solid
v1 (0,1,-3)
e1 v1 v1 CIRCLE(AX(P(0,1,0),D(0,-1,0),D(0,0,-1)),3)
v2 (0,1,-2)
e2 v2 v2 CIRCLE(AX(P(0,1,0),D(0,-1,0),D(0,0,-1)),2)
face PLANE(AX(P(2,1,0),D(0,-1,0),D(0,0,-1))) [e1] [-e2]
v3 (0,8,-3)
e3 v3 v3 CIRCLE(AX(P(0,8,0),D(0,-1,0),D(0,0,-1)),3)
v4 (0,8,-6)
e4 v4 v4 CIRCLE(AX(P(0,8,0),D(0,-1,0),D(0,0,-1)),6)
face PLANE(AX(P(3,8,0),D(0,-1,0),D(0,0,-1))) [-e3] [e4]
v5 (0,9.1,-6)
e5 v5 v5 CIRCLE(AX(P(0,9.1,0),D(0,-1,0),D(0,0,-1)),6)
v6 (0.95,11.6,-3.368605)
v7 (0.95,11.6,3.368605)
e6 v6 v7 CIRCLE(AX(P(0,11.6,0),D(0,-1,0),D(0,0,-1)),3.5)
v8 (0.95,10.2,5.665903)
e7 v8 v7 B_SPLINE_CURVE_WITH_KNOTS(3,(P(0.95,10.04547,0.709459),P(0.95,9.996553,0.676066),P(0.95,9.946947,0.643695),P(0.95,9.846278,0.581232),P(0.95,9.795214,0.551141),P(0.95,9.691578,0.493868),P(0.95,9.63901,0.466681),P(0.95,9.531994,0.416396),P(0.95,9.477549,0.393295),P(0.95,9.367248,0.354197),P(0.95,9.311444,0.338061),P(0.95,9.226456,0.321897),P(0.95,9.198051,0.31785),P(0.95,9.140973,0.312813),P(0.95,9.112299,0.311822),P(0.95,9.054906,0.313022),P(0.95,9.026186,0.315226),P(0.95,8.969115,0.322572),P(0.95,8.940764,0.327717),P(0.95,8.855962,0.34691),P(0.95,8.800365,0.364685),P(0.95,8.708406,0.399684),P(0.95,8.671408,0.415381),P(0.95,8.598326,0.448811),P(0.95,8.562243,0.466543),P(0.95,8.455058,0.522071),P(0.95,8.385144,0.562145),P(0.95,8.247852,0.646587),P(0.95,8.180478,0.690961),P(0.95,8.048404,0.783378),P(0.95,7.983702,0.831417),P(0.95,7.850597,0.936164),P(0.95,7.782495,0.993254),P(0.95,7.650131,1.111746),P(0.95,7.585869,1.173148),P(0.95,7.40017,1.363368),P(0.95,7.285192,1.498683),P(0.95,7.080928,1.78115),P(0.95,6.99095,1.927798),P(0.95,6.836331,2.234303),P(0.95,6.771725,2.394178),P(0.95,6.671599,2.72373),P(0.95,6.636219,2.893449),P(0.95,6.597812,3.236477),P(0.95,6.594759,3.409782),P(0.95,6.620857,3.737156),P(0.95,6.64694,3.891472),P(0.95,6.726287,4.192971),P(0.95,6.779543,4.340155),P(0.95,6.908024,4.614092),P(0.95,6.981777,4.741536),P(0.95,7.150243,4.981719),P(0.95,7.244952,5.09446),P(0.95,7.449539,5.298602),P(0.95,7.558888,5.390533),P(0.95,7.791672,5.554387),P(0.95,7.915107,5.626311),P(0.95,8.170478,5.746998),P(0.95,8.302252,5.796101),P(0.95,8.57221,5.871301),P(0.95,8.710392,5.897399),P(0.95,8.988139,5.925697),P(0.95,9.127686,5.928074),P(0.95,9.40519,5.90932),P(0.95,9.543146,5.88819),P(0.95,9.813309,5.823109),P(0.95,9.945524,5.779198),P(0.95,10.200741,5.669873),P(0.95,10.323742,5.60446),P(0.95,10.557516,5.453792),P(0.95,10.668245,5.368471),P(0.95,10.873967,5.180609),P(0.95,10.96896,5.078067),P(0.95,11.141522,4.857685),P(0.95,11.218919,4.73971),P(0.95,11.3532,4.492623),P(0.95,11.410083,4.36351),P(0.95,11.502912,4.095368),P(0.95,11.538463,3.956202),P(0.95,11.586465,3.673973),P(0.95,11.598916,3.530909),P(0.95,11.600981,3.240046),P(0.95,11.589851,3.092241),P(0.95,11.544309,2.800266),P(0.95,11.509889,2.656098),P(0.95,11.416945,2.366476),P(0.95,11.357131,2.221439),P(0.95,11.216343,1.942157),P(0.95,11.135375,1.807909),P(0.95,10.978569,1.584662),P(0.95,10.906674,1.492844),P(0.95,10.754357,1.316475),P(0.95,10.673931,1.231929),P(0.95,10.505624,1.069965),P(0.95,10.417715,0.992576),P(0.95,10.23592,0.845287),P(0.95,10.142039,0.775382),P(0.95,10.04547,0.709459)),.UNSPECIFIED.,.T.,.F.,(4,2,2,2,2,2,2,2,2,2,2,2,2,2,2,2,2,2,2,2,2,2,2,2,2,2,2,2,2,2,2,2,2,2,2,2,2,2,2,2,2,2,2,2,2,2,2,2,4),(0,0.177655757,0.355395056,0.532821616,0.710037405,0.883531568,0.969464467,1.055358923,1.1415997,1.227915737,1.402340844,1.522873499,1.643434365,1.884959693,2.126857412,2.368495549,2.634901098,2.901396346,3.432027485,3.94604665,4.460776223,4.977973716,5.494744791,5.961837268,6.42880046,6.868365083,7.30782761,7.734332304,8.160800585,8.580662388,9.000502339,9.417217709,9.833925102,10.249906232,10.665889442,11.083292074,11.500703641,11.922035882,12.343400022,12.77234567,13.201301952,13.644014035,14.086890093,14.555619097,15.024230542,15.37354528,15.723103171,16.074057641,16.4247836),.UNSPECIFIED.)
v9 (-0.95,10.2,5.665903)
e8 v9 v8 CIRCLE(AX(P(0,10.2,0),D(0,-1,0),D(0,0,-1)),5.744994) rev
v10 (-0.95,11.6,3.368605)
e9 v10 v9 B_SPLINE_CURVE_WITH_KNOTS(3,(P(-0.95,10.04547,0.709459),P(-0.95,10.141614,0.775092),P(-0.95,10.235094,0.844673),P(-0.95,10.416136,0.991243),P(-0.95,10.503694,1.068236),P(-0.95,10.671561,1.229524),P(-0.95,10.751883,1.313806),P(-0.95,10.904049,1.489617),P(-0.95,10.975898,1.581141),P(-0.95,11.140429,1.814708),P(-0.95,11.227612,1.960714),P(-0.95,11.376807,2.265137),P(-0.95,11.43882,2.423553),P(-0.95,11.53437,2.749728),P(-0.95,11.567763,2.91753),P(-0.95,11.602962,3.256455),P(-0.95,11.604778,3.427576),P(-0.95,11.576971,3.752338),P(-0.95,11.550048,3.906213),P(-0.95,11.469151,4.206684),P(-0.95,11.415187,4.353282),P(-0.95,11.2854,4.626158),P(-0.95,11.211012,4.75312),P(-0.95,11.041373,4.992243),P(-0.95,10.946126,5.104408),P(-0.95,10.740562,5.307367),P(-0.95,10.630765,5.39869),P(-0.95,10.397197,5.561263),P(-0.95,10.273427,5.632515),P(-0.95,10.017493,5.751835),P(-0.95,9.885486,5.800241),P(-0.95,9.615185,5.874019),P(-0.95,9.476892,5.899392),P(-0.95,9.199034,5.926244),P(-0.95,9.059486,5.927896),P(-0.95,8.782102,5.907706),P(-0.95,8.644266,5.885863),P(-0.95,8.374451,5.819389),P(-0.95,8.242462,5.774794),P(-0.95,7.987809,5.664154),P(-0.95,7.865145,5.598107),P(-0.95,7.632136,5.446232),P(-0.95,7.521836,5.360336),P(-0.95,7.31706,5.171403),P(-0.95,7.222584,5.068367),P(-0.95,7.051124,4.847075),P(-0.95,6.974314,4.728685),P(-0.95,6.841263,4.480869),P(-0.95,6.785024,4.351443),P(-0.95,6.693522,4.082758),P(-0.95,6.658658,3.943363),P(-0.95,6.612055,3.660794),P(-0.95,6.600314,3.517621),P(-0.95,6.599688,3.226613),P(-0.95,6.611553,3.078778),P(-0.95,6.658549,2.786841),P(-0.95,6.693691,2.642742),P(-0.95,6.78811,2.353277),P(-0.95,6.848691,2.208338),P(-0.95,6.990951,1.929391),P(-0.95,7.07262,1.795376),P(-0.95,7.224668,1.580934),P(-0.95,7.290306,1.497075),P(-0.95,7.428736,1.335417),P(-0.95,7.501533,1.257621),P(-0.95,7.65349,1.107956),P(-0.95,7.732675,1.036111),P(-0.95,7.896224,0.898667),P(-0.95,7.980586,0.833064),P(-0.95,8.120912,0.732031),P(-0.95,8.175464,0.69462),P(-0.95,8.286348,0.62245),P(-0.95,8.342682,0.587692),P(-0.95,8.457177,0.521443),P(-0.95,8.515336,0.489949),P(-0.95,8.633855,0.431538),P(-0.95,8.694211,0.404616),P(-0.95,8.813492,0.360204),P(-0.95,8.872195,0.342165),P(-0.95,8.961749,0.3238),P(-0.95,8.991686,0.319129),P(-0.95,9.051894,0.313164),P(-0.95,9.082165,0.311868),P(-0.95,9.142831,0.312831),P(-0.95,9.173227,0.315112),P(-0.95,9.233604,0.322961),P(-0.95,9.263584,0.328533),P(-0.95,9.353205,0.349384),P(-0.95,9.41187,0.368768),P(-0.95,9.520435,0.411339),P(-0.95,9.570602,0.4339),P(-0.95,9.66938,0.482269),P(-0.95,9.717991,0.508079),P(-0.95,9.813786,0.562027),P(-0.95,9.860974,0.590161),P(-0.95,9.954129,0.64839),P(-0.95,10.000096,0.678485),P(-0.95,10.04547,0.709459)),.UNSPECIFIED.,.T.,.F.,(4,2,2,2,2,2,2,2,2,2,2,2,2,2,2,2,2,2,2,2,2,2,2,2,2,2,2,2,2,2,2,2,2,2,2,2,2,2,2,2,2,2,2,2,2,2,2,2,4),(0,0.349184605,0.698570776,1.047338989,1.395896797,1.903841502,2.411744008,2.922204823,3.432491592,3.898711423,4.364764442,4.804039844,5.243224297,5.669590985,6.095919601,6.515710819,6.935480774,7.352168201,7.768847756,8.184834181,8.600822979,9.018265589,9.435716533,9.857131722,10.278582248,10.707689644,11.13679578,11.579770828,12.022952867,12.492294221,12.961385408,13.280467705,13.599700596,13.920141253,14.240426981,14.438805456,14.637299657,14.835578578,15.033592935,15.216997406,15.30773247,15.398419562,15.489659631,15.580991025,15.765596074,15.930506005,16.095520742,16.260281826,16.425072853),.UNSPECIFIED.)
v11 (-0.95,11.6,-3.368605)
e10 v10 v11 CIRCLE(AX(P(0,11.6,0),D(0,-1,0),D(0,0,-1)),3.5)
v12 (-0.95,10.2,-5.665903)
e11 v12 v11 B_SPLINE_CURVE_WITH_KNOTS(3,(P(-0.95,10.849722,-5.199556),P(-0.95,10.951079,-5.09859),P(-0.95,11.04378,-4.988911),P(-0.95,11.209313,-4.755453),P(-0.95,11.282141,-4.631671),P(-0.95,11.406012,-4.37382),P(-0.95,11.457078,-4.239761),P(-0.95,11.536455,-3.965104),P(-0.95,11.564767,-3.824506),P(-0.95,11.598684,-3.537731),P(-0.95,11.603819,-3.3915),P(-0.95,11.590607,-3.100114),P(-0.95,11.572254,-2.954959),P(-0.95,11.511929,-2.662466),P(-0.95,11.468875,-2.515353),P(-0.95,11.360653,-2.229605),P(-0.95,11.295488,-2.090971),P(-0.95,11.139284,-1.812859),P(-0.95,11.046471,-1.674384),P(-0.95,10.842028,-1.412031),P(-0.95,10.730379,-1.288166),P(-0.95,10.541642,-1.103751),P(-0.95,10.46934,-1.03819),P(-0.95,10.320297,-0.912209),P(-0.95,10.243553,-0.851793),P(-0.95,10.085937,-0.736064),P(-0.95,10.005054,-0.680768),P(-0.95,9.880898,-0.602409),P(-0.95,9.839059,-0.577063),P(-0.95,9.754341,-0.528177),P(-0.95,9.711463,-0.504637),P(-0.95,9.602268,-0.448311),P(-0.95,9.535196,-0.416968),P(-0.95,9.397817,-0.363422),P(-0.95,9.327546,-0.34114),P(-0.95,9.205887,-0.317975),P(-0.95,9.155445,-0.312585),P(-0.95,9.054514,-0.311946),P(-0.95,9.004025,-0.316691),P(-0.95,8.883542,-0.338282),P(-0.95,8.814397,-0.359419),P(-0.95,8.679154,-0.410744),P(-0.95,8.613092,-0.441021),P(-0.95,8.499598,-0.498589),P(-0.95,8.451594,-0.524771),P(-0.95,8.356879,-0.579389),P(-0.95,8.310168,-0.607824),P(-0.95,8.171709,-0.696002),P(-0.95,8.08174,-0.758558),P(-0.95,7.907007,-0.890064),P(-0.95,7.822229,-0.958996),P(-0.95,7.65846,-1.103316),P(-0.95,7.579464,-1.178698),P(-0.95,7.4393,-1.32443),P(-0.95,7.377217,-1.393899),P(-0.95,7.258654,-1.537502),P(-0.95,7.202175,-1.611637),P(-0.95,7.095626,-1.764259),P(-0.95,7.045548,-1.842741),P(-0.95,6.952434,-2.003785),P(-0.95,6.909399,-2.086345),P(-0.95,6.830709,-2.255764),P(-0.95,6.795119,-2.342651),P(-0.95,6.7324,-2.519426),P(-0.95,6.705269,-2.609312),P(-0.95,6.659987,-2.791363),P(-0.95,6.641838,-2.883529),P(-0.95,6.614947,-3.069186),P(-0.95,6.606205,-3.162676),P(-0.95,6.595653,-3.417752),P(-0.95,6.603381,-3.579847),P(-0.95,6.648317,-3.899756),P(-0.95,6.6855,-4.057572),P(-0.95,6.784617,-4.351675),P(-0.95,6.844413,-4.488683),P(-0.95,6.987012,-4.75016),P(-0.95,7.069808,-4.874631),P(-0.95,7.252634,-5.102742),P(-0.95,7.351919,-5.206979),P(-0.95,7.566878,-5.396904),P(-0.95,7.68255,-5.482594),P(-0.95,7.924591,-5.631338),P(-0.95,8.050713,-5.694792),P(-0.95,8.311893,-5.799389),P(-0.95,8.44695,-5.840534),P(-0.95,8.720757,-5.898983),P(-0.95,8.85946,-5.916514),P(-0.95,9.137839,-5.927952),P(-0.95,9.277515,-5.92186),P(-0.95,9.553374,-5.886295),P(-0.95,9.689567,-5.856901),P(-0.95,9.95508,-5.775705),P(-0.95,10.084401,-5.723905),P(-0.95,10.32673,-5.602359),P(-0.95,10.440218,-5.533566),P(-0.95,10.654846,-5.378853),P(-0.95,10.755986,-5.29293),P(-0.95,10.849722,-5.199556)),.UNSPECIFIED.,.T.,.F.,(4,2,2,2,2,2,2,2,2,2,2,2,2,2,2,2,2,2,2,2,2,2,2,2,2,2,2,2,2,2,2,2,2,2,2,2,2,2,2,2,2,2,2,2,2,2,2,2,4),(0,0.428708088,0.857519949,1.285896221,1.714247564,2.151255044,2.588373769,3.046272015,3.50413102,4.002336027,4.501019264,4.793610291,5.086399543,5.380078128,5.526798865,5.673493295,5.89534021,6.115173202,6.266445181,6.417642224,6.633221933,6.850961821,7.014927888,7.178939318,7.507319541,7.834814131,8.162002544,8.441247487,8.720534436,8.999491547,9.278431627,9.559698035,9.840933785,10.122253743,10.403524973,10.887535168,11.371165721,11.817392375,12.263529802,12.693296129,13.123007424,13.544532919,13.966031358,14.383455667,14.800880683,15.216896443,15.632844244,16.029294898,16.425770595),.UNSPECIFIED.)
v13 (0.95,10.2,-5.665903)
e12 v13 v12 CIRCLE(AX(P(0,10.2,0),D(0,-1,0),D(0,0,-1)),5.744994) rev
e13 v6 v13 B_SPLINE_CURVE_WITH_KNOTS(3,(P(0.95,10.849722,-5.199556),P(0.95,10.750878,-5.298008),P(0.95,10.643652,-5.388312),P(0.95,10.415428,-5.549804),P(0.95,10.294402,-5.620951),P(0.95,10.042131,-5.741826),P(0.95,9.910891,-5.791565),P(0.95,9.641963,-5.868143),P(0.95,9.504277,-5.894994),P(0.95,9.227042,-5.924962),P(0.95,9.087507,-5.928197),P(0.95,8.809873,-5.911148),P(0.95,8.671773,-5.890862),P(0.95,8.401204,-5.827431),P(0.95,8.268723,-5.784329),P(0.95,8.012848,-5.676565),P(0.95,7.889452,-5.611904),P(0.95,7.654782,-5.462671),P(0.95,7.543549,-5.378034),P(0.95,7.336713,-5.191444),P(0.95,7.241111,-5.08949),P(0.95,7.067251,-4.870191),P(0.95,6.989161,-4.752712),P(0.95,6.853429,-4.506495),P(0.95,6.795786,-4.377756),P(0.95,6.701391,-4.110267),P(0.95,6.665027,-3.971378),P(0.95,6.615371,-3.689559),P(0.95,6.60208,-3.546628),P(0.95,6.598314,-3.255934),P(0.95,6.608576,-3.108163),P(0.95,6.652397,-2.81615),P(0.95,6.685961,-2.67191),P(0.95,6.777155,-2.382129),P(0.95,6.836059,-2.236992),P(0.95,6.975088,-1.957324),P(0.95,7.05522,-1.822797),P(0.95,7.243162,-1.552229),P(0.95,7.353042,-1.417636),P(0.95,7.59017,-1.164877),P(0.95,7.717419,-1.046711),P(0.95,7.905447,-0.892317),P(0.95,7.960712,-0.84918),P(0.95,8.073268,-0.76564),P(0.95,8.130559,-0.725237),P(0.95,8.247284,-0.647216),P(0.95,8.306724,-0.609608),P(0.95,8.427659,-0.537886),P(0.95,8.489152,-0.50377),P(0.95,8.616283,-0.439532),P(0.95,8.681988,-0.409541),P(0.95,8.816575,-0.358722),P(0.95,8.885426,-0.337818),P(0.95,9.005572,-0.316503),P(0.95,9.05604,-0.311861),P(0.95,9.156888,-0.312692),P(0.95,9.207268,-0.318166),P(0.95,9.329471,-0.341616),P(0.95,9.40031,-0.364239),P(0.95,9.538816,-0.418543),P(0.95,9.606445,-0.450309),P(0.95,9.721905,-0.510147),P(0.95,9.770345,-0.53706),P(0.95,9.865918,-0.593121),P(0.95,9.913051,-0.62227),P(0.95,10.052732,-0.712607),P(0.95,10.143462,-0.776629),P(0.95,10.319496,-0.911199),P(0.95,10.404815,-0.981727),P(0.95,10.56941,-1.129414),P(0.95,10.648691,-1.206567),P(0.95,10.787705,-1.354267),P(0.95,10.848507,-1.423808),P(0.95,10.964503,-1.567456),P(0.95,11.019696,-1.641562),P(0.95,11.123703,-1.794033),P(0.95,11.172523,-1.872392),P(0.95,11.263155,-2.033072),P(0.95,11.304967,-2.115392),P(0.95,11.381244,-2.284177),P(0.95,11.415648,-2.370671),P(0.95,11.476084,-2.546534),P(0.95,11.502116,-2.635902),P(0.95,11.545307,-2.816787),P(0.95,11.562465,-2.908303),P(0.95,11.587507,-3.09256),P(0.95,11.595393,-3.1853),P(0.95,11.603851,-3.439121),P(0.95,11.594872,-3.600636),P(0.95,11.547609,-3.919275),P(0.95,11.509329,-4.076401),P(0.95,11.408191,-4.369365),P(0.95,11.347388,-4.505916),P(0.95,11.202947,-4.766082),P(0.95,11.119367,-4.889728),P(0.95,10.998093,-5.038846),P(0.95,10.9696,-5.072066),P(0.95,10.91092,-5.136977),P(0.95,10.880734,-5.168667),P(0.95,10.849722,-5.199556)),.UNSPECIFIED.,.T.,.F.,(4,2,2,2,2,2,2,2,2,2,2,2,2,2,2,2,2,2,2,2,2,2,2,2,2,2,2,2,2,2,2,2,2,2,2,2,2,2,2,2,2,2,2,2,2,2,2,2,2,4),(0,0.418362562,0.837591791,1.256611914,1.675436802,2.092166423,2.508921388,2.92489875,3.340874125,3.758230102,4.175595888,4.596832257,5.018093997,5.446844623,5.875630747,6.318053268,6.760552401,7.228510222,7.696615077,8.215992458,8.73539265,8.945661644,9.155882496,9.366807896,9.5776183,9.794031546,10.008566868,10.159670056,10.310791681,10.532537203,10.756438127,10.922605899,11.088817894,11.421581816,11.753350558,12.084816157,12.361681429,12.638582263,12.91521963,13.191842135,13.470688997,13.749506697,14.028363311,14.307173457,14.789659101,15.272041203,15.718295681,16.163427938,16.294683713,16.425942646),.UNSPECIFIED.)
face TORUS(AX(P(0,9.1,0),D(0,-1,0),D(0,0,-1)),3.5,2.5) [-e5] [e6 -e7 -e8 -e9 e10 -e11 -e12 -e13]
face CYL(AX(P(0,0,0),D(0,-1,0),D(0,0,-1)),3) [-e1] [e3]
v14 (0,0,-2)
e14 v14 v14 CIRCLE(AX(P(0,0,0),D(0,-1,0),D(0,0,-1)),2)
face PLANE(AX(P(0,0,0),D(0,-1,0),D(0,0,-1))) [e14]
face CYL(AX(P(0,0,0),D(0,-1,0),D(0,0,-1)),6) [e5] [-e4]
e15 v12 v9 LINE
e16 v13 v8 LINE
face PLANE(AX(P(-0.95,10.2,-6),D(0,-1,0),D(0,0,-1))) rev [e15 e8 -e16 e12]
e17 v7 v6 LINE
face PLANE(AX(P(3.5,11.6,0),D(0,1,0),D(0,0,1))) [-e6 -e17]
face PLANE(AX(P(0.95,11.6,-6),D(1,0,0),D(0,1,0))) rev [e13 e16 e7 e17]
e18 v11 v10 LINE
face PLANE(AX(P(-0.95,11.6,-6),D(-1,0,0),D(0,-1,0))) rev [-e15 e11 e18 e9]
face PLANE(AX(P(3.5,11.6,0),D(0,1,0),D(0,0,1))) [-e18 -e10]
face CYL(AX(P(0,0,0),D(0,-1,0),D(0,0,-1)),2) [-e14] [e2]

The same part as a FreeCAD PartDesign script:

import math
import FreeCAD as App
import Part
import Sketcher
Q = App.Units.Quantity

doc = App.newDocument("Part")
body = doc.addObject("PartDesign::Body", "Body")

sketch1 = doc.addObject("Sketcher::SketchObject", "Sketch")
body.addObject(sketch1)
sketch1.AttachmentSupport = (doc.XY_Plane, [""])
sketch1.MapMode = "FlatFace"
sketch1.addGeometry([
    Part.LineSegment(App.Vector(0, 0, 0), App.Vector(2, 0, 0)),
    Part.LineSegment(App.Vector(2, 0, 0), App.Vector(2, 1, 0)),
    Part.LineSegment(App.Vector(2, 1, 0), App.Vector(3, 1, 0)),
    Part.LineSegment(App.Vector(3, 1, 0), App.Vector(3, 8, 0)),
    Part.LineSegment(App.Vector(3, 8, 0), App.Vector(6, 8, 0)),
    Part.LineSegment(App.Vector(6, 8, 0), App.Vector(6, 9.1, 0)),
    Part.ArcOfCircle(Part.Circle(App.Vector(3.5, 9.1, 0), App.Vector(0, 0, 1), 2.5), math.radians(0), math.radians(90)),
    Part.LineSegment(App.Vector(3.5, 11.6, 0), App.Vector(0, 11.6, 0)),
    Part.LineSegment(App.Vector(0, 11.6, 0), App.Vector(0, 0, 0)),
], False)
sketch1.addConstraint([
    Sketcher.Constraint("Coincident", 0, 2, 1, 1),
    Sketcher.Constraint("Coincident", 1, 2, 2, 1),
    Sketcher.Constraint("Coincident", 2, 2, 3, 1),
    Sketcher.Constraint("Coincident", 3, 2, 4, 1),
    Sketcher.Constraint("Coincident", 4, 2, 5, 1),
    Sketcher.Constraint("Tangent", 5, 2, 6, 1),
    Sketcher.Constraint("Tangent", 6, 2, 7, 1),
    Sketcher.Constraint("Coincident", 7, 2, 8, 1),
    Sketcher.Constraint("Coincident", 8, 2, 0, 1),
    Sketcher.Constraint("Horizontal", 0),
    Sketcher.Constraint("Vertical", 1),
    Sketcher.Constraint("Horizontal", 2),
    Sketcher.Constraint("Vertical", 3),
    Sketcher.Constraint("Horizontal", 4),
    Sketcher.Constraint("Vertical", 5),
    Sketcher.Constraint("Horizontal", 7),
    Sketcher.Constraint("Vertical", 8),
    Sketcher.Constraint("Coincident", 8, 2, -1, 1),
    Sketcher.Constraint("Equal", 2, 1),
    Sketcher.Constraint("Radius", 6, Q("2.5 mm")),
    Sketcher.Constraint("DistanceX", 0, 1, 0, 2, Q("2 mm")),
    Sketcher.Constraint("DistanceX", 2, 1, 2, 2, Q("1 mm")),
    Sketcher.Constraint("DistanceX", 4, 1, 4, 2, Q("3 mm")),
    Sketcher.Constraint("DistanceY", 3, 1, 3, 2, Q("7 mm")),
    Sketcher.Constraint("DistanceY", 5, 1, 5, 2, Q("1.1 mm")),
])
revolution = doc.addObject("PartDesign::Revolution", "Revolution")
body.addObject(revolution)
revolution.Profile = sketch1
revolution.ReferenceAxis = (sketch1, ["V_Axis"])
revolution.Angle = 360

sketch2 = doc.addObject("Sketcher::SketchObject", "Sketch001")
body.addObject(sketch2)
sketch2.AttachmentSupport = (doc.XY_Plane, [""])
sketch2.MapMode = "FlatFace"
sketch2.addGeometry([
    Part.LineSegment(App.Vector(-0.9, 11.6, 0), App.Vector(-0.9, 10.2, 0)),
    Part.LineSegment(App.Vector(-0.9, 10.2, 0), App.Vector(0.9, 10.2, 0)),
    Part.LineSegment(App.Vector(0.9, 10.2, 0), App.Vector(0.9, 11.6, 0)),
    Part.LineSegment(App.Vector(0.9, 11.6, 0), App.Vector(-0.9, 11.6, 0)),
], False)
sketch2.addConstraint([
    Sketcher.Constraint("Coincident", 0, 2, 1, 1),
    Sketcher.Constraint("Coincident", 1, 2, 2, 1),
    Sketcher.Constraint("Coincident", 2, 2, 3, 1),
    Sketcher.Constraint("Coincident", 3, 2, 0, 1),
    Sketcher.Constraint("Vertical", 0),
    Sketcher.Constraint("Horizontal", 1),
    Sketcher.Constraint("Vertical", 2),
    Sketcher.Constraint("Horizontal", 3),
    Sketcher.Constraint("DistanceX", 1, 1, 1, 2, Q("1.9 mm")),
    Sketcher.Constraint("DistanceY", 0, 2, 0, 1, Q("1.4 mm")),
    Sketcher.Constraint("DistanceY", -1, 1, 0, 2, Q("10.2 mm")),
    Sketcher.Constraint("DistanceX", 0, 2, -1, 1, Q("0.95 mm")),
])
pocket1 = doc.addObject("PartDesign::Pocket", "Pocket")
body.addObject(pocket1)
pocket1.Profile = sketch2
pocket1.Type = "ThroughAll"
pocket1.Midplane = True

doc.recompute()
